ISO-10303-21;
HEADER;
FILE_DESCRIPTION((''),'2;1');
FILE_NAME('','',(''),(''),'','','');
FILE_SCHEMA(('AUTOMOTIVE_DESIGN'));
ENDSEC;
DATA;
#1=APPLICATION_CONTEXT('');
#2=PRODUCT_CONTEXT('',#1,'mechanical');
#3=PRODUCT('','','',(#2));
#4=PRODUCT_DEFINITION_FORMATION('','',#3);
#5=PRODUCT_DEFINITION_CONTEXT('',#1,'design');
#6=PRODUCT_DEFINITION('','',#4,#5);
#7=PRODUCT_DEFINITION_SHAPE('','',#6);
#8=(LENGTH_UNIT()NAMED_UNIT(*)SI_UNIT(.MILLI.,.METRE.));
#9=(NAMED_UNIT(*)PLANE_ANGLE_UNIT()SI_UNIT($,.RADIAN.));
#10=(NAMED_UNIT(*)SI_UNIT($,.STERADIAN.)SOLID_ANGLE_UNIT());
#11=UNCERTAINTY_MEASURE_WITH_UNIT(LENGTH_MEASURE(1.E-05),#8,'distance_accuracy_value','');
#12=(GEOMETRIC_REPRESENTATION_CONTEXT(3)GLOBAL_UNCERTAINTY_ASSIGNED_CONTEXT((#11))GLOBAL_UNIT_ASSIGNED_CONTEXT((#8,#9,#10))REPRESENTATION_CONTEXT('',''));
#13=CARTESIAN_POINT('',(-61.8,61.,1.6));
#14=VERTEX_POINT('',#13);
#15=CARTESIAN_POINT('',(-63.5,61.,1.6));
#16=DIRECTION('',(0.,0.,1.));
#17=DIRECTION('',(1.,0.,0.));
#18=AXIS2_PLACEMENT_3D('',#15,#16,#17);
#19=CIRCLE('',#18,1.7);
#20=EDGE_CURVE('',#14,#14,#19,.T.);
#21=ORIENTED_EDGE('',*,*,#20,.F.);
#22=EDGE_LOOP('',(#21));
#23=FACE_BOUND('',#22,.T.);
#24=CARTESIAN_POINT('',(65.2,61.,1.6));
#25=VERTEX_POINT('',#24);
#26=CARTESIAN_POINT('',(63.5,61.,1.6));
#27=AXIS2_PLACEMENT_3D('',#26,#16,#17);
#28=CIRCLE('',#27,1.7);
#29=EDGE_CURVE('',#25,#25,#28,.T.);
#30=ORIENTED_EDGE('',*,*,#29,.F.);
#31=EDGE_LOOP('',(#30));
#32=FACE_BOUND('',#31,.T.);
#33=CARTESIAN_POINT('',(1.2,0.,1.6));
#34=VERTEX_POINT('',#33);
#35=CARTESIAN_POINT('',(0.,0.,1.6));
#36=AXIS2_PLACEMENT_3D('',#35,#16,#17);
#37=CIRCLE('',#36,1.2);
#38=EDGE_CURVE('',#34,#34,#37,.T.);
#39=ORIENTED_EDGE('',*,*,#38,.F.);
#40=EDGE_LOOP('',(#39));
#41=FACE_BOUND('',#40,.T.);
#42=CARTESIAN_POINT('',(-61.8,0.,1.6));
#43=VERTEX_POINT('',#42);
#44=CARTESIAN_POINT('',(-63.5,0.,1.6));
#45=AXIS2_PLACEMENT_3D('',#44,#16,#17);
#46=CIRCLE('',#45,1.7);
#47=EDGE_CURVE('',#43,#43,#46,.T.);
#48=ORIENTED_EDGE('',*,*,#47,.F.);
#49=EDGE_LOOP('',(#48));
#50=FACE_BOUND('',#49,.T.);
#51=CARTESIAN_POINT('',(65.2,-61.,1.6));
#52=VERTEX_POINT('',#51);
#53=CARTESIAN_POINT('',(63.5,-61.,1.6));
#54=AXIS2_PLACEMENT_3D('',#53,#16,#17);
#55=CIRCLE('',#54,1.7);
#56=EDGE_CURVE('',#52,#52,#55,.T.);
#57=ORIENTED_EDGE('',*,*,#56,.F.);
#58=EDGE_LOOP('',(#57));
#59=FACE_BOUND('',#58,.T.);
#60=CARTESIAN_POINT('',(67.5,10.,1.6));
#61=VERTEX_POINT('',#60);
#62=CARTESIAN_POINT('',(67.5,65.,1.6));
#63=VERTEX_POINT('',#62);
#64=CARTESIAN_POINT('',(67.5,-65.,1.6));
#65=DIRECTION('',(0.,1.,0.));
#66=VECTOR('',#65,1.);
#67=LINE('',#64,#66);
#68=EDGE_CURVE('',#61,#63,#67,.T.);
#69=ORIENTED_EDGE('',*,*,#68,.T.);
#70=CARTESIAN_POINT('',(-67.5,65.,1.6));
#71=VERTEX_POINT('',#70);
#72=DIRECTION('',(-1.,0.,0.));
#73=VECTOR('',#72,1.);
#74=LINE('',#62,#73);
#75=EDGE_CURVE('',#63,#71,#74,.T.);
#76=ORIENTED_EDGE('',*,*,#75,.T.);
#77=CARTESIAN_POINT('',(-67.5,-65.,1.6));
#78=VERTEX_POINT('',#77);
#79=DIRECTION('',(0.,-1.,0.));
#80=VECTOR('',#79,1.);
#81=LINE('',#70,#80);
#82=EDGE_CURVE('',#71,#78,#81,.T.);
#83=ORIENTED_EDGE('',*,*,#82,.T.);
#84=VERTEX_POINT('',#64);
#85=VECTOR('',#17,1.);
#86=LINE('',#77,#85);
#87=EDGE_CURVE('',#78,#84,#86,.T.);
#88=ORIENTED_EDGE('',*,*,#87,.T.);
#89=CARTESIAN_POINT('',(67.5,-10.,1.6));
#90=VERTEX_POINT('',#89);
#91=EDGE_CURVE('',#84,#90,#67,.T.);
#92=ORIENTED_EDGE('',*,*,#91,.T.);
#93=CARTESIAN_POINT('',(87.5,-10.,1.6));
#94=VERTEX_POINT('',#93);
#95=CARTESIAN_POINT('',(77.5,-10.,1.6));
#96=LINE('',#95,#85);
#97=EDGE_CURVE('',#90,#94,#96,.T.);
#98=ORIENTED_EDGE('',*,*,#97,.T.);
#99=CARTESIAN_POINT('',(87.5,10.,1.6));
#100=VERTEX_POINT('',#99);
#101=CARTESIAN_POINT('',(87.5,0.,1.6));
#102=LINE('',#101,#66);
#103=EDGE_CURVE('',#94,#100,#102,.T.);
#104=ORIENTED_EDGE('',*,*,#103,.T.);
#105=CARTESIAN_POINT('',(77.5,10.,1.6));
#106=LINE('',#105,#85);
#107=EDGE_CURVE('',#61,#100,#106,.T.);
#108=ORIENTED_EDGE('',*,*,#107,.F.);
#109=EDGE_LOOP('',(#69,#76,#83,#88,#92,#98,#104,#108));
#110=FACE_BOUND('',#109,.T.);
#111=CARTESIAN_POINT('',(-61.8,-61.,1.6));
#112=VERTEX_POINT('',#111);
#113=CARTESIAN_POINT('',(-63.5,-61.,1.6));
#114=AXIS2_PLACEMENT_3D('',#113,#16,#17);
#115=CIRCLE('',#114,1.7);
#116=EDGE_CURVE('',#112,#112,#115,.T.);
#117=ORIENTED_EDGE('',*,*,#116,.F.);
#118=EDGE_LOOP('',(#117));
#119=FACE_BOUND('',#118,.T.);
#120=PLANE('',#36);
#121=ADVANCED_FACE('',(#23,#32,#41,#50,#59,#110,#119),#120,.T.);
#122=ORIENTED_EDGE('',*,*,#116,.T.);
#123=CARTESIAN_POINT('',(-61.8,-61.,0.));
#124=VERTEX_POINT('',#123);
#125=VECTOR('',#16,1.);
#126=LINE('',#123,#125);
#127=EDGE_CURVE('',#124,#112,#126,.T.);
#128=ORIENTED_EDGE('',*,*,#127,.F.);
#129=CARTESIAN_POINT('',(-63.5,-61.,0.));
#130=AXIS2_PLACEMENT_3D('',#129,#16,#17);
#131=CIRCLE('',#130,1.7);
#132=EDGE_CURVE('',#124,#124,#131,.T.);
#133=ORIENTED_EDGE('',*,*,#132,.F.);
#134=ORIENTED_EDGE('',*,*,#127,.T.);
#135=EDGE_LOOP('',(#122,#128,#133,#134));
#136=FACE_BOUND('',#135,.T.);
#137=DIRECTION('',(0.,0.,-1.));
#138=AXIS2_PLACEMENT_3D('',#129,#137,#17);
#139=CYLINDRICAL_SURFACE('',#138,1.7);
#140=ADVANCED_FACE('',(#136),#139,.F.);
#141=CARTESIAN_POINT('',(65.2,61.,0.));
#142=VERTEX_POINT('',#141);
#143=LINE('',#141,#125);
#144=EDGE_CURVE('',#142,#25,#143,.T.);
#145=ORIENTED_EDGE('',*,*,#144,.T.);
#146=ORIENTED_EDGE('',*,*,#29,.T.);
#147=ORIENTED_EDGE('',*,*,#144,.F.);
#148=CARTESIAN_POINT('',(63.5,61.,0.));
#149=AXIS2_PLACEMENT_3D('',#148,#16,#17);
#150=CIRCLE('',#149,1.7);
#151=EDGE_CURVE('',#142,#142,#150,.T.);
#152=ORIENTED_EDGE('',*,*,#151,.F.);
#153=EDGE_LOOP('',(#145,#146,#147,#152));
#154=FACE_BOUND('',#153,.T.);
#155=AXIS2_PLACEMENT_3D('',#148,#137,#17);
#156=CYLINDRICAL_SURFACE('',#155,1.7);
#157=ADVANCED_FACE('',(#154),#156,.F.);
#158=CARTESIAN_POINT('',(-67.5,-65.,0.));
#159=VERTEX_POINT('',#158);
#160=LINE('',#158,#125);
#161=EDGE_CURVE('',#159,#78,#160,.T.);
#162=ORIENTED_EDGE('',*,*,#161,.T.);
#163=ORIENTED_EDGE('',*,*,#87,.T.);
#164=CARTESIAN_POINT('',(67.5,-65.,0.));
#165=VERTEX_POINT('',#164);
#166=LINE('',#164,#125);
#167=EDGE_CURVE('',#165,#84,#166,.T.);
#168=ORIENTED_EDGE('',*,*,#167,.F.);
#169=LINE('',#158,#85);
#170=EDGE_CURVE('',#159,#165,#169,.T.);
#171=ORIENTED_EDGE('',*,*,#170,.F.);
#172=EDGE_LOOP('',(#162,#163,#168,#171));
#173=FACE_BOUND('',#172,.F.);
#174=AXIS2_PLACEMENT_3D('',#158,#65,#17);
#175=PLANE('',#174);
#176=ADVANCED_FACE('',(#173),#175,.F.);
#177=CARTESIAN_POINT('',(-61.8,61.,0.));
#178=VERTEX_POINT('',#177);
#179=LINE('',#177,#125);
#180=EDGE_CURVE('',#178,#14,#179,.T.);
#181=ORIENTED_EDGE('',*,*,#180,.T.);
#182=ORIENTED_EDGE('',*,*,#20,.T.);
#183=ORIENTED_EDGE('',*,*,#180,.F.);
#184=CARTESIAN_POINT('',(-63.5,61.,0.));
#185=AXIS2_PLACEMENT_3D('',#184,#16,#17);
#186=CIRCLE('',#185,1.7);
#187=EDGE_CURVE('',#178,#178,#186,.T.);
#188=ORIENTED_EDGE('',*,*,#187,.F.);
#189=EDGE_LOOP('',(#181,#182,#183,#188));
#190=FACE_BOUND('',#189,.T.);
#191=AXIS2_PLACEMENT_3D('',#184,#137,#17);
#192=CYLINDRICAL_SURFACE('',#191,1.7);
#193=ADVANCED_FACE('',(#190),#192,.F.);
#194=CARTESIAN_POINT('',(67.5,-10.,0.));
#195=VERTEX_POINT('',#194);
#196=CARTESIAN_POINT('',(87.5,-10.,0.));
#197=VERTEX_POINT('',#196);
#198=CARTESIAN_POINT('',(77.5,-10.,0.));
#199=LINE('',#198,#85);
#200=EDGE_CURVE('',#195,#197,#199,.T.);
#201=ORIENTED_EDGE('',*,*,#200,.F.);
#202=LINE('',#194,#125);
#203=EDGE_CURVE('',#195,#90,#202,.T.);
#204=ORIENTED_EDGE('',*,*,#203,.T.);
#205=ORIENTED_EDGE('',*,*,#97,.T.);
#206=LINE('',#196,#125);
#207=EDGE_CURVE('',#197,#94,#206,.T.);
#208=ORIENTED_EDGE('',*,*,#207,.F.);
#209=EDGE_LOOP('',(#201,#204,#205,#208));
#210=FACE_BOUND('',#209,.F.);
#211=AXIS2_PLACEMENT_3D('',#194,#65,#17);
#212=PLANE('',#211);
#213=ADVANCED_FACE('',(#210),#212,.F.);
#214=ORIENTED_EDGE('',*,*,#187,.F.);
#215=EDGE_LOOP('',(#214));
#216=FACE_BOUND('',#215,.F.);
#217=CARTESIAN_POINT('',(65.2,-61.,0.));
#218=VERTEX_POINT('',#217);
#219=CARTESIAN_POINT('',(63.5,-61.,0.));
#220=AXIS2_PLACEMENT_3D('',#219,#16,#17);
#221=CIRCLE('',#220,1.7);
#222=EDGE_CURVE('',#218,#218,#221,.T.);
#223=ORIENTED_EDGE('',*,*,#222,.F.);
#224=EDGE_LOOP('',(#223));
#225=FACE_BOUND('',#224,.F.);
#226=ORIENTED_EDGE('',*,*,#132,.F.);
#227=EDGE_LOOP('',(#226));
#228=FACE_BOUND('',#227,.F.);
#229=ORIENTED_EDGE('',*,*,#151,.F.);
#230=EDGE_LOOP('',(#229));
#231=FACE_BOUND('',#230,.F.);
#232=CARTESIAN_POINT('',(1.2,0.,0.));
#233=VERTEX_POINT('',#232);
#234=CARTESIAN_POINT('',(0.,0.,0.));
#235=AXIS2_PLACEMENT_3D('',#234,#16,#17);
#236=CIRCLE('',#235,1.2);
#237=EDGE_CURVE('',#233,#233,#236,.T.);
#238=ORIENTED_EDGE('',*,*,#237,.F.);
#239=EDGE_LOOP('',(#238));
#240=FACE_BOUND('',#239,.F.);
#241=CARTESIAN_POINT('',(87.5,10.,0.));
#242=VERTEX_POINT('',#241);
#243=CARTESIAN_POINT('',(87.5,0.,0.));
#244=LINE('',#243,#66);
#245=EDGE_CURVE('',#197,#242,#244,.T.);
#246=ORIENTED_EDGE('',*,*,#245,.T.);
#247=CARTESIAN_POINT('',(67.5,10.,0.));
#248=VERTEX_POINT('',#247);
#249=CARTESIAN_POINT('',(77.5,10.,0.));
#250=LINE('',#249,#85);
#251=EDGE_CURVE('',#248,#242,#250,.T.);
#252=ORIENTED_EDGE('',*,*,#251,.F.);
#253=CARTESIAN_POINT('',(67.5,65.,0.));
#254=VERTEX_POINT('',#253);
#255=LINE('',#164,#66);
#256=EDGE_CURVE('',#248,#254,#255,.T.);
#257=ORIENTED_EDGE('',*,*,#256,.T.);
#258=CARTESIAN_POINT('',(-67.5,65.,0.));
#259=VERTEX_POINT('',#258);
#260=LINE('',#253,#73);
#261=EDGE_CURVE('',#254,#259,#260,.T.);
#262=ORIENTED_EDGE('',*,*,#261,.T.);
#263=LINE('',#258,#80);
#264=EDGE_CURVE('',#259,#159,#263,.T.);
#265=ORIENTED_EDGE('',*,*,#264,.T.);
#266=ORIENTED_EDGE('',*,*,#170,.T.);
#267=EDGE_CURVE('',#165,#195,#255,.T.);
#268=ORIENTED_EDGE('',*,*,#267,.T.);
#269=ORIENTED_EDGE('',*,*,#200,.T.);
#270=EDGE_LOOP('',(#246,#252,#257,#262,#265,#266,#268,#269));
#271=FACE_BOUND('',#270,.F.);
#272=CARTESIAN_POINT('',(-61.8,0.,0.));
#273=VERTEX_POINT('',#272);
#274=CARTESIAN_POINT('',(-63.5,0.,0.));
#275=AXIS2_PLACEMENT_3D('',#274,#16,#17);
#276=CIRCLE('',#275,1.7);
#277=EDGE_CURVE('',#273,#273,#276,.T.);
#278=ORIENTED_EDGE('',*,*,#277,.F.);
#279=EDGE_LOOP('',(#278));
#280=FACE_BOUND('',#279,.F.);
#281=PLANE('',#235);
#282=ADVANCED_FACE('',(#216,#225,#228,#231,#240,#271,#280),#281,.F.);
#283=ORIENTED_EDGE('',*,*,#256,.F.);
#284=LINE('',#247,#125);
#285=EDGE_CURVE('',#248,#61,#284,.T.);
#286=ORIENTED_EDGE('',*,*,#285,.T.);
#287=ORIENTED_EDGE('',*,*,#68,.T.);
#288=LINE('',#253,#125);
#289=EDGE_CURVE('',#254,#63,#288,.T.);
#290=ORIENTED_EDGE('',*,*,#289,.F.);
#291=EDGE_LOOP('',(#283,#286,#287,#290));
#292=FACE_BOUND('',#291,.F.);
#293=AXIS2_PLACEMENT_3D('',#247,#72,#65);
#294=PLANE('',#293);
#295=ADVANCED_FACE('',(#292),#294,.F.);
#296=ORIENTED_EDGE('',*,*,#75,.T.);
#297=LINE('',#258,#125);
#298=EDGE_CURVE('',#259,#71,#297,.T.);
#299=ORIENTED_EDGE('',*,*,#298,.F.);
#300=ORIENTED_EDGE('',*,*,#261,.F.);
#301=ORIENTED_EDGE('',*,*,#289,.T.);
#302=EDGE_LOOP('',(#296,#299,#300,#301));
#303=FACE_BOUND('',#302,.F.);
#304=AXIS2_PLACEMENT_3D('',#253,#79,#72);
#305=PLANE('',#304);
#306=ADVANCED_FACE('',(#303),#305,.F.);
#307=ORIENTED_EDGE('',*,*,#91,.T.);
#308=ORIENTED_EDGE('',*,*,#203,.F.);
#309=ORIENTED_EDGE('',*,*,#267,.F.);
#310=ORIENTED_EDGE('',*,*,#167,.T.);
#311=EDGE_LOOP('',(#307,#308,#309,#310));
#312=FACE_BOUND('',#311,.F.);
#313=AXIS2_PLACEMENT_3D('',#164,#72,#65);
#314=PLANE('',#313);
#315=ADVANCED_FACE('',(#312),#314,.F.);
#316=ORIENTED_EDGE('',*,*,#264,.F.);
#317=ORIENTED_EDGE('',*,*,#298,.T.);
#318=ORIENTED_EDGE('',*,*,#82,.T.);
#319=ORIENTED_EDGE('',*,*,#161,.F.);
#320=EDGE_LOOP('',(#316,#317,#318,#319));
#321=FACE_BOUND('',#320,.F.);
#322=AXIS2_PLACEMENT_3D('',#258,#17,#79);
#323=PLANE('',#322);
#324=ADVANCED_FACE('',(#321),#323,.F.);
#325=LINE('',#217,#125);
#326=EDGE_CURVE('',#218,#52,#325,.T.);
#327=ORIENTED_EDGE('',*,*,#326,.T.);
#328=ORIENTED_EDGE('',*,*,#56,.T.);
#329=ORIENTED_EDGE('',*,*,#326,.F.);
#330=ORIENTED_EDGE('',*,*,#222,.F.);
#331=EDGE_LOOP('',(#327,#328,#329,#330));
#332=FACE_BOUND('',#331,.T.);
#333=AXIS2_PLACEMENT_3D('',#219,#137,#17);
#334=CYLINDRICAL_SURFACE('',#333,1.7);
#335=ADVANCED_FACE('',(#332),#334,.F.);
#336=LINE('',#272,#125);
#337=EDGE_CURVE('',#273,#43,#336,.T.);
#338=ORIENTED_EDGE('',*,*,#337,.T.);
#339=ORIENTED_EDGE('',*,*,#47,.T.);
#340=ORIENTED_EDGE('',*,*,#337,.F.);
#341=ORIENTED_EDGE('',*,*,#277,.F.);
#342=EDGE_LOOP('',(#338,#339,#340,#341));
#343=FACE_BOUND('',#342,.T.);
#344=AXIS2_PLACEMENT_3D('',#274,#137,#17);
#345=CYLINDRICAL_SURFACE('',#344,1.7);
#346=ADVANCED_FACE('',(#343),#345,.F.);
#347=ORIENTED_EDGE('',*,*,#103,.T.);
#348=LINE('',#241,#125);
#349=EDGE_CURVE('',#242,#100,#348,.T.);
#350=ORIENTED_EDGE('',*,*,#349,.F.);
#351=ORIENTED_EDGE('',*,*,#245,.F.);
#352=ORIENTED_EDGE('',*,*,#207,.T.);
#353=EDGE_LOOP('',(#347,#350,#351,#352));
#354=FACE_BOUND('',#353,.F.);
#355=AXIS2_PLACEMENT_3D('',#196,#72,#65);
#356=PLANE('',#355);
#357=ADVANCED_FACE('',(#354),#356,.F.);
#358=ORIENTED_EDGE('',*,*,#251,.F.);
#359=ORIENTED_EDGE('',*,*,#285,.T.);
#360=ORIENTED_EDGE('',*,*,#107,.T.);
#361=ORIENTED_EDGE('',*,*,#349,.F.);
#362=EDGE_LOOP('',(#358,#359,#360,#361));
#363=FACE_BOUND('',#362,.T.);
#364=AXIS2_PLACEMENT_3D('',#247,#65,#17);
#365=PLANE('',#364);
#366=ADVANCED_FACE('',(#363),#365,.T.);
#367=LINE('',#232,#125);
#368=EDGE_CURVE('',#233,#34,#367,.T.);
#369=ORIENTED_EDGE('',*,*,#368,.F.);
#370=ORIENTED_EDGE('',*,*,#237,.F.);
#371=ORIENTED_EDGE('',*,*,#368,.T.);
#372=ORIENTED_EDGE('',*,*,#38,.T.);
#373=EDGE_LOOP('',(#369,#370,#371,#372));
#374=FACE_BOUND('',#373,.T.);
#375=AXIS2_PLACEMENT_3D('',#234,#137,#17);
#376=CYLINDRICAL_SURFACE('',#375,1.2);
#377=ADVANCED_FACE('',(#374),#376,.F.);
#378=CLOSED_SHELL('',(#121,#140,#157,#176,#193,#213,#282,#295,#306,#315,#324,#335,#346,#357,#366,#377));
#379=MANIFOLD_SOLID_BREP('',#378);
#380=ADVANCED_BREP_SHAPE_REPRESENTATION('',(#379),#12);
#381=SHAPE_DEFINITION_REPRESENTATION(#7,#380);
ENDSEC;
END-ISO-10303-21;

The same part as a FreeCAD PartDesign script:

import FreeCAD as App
import Part
import Sketcher

V = App.Vector
Q = App.Units.Quantity

doc = App.newDocument("Part")
body = doc.addObject("PartDesign::Body", "Body")

# Sketch on XY plane
sketch1 = body.newObject("Sketcher::SketchObject", "Sketch")
sketch1.AttachmentSupport = (doc.getObject("XY_Plane"), [""])
sketch1.MapMode = "FlatFace"
sketch1.addGeometry([
    Part.LineSegment(V(67.5, 65, 0), V(-67.5, 65, 0)),  # 0
    Part.LineSegment(V(-67.5, 65, 0), V(-67.5, -65, 0)),  # 1
    Part.LineSegment(V(-67.5, -65, 0), V(67.5, -65, 0)),  # 2
    Part.LineSegment(V(67.5, -65, 0), V(67.5, -10, 0)),  # 3
    Part.LineSegment(V(67.5, -10, 0), V(87.5, -10, 0)),  # 4
    Part.LineSegment(V(87.5, -10, 0), V(87.5, 10, 0)),  # 5
    Part.LineSegment(V(87.5, 10, 0), V(67.5, 10, 0)),  # 6
    Part.LineSegment(V(67.5, 10, 0), V(67.5, 65, 0)),  # 7
    Part.Circle(V(-63.5, -61, 0), V(0, 0, 1), 1.7),  # 8
    Part.Circle(V(63.5, -61, 0), V(0, 0, 1), 1.7),  # 9
    Part.Circle(V(-63.5, 0, 0), V(0, 0, 1), 1.7),  # 10
    Part.Circle(V(-63.5, 61, 0), V(0, 0, 1), 1.7),  # 11
    Part.Circle(V(0, 0, 0), V(0, 0, 1), 1.2),  # 12
    Part.Circle(V(63.5, 61, 0), V(0, 0, 1), 1.7),  # 13
], False)
sketch1.addConstraint([
    Sketcher.Constraint("Coincident", 0, 2, 1, 1),
    Sketcher.Constraint("Coincident", 1, 2, 2, 1),
    Sketcher.Constraint("Coincident", 2, 2, 3, 1),
    Sketcher.Constraint("Coincident", 3, 2, 4, 1),
    Sketcher.Constraint("Coincident", 4, 2, 5, 1),
    Sketcher.Constraint("Coincident", 5, 2, 6, 1),
    Sketcher.Constraint("Coincident", 6, 2, 7, 1),
    Sketcher.Constraint("Coincident", 7, 2, 0, 1),
    Sketcher.Constraint("Horizontal", 0),
    Sketcher.Constraint("Vertical", 1),
    Sketcher.Constraint("Horizontal", 2),
    Sketcher.Constraint("Vertical", 3),
    Sketcher.Constraint("Horizontal", 4),
    Sketcher.Constraint("Vertical", 5),
    Sketcher.Constraint("Horizontal", 6),
    Sketcher.Constraint("Vertical", 7),
    Sketcher.Constraint("Coincident", 12, 3, -1, 1),
    Sketcher.Constraint("Equal", 8, 9),
    Sketcher.Constraint("Equal", 9, 10),
    Sketcher.Constraint("Equal", 10, 11),
    Sketcher.Constraint("Equal", 11, 13),
    Sketcher.Constraint("Symmetric", 9, 3, 11, 3, -1, 1),
    Sketcher.Constraint("Symmetric", 8, 3, 13, 3, -1, 1),
    Sketcher.Constraint("Symmetric", 0, 2, 2, 2, -1, 1),
    Sketcher.Constraint("Symmetric", 8, 3, 9, 3, -2),
    Sketcher.Constraint("Symmetric", 3, 2, 6, 2, -1),
    Sketcher.Constraint("PointOnObject", 10, 3, -1),
    Sketcher.Constraint("Vertical", 8, 3, 10, 3),
    Sketcher.Constraint("Equal", 6, 5),
    Sketcher.Constraint("Diameter", 8, Q("3.4 mm")),
    Sketcher.Constraint("Diameter", 12, Q("2.4 mm")),
    Sketcher.Constraint("DistanceX", 0, 2, 0, 1, Q("135 mm")),
    Sketcher.Constraint("DistanceX", 4, 1, 4, 2, Q("20 mm")),
    Sketcher.Constraint("DistanceY", 1, 2, 1, 1, Q("130 mm")),
    Sketcher.Constraint("DistanceY", 8, 3, -1, 1, Q("61 mm")),
    Sketcher.Constraint("DistanceX", 8, 3, 9, 3, Q("127 mm")),
])
pad1 = body.newObject("PartDesign::Pad", "Pad")
pad1.Profile = sketch1
pad1.Length = 1.6

doc.recompute()
